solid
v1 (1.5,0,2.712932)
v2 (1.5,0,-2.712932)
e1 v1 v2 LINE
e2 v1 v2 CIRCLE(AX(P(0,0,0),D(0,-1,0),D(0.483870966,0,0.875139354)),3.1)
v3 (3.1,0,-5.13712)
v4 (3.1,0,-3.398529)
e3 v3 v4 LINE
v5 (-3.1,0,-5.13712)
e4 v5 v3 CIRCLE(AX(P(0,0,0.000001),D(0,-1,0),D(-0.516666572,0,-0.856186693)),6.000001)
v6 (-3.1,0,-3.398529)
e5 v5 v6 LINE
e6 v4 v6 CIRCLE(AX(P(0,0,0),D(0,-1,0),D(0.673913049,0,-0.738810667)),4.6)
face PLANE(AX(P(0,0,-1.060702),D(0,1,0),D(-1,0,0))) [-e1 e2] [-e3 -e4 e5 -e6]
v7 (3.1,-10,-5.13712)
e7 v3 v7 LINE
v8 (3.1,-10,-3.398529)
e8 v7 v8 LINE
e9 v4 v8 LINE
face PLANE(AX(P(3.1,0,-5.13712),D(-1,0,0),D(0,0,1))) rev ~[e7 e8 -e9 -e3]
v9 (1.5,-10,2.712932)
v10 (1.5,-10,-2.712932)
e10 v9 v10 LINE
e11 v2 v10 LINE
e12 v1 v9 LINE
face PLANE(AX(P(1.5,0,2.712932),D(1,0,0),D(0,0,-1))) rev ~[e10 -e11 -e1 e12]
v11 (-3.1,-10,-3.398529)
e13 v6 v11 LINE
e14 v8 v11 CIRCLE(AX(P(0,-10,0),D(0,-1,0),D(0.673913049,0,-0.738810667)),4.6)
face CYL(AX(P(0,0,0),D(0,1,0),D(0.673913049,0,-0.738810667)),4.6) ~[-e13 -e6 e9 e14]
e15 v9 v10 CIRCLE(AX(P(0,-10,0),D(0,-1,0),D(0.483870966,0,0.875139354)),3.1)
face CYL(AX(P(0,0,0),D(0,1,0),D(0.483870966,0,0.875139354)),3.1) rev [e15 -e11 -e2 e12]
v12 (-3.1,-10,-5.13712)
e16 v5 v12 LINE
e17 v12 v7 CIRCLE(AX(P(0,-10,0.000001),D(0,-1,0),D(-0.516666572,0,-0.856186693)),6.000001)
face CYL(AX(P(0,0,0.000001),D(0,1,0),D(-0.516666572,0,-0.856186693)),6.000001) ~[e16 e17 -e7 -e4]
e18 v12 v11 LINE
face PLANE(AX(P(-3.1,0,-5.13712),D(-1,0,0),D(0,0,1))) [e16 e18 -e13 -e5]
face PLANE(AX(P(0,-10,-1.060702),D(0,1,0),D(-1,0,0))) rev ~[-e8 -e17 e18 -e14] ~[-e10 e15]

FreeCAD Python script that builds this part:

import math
import FreeCAD as App
import Part
import Sketcher
from FreeCAD import Vector

doc = App.newDocument("Part")
body = doc.addObject("PartDesign::Body", "Body")

# Sketch on XZ plane
sketch1 = body.newObject("Sketcher::SketchObject", "Sketch")
sketch1.AttachmentSupport = (doc.getObject("XZ_Plane"), [""])
sketch1.MapMode = "FlatFace"
sketch1.addGeometry([
    Part.LineSegment(Vector(-3.1, -3.4, 0), Vector(-3.1, -5.1, 0)),  # 0
    Part.ArcOfCircle(Part.Circle(Vector(0, 0, 0), Vector(0, 0, 1), 6), math.radians(-121), math.radians(-59)),  # 1
    Part.LineSegment(Vector(3.1, -5.1, 0), Vector(3.1, -3.4, 0)),  # 2
    Part.ArcOfCircle(Part.Circle(Vector(0, 0, 0), Vector(0, 0, 1), 4.6), math.radians(-48), math.radians(228)),  # 3
    Part.LineSegment(Vector(1.5, 2.7, 0), Vector(1.5, -2.7, 0)),  # 4
    Part.ArcOfCircle(Part.Circle(Vector(0, 0, 0), Vector(0, 0, 1), 3.1), math.radians(61), math.radians(299)),  # 5
], False)
sketch1.addConstraint([
    Sketcher.Constraint("Coincident", 0, 2, 1, 1),
    Sketcher.Constraint("Coincident", 1, 2, 2, 1),
    Sketcher.Constraint("Coincident", 2, 2, 3, 1),
    Sketcher.Constraint("Coincident", 3, 2, 0, 1),
    Sketcher.Constraint("Coincident", 4, 1, 5, 1),
    Sketcher.Constraint("Coincident", 5, 2, 4, 2),
    Sketcher.Constraint("Vertical", 0),
    Sketcher.Constraint("Vertical", 2),
    Sketcher.Constraint("Vertical", 4),
    Sketcher.Constraint("Coincident", 1, 3, -1, 1),
    Sketcher.Constraint("Coincident", 3, 3, -1, 1),
    Sketcher.Constraint("Coincident", 5, 3, -1, 1),
    Sketcher.Constraint("Horizontal", 0, 2, 1, 2),
    Sketcher.Constraint("Radius", 1, 6.000001),
    Sketcher.Constraint("Radius", 3, 4.6),
    Sketcher.Constraint("Radius", 5, 3.1),
    Sketcher.Constraint("DistanceX", 0, 2, -1, 1, 3.1),
    Sketcher.Constraint("DistanceX", -1, 1, 4, 1, 1.5),
])
pad1 = body.newObject("PartDesign::Pad", "Pad")
pad1.Profile = sketch1
pad1.Length = 10

doc.recompute()
